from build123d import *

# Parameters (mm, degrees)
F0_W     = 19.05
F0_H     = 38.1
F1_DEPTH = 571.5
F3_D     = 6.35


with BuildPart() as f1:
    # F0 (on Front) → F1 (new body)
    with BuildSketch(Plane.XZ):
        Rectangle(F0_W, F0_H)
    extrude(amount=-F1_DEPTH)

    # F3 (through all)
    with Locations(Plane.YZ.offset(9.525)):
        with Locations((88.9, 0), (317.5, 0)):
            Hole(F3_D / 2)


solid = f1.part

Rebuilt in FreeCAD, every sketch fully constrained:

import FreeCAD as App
import Part
import Sketcher
Q = App.Units.Quantity


def add_polygon(sketch, points):
    """Adds a closed chain of lines whose ends are joined by coincident constraints."""
    first, n = sketch.GeometryCount, len(points)
    for a, b in zip(points, points[1:] + points[:1]):
        sketch.addGeometry(Part.LineSegment(App.Vector(*a, 0), App.Vector(*b, 0)), False)
    for i in range(n):
        sketch.addConstraint(Sketcher.Constraint("Coincident", first + i, 2, first + (i + 1) % n, 1))

doc = App.newDocument("Part")
body = doc.addObject("PartDesign::Body", "Body")

# Sketch on XZ plane
sketch1 = doc.addObject("Sketcher::SketchObject", "Sketch")
body.addObject(sketch1)
sketch1.AttachmentSupport = (doc.XZ_Plane, [""])
sketch1.MapMode = "FlatFace"
add_polygon(sketch1, [(-10, 19), (-10, -19), (10, -19), (10, 19)])  # lines 0-3
sketch1.addConstraint(Sketcher.Constraint("Vertical", 0))
sketch1.addConstraint(Sketcher.Constraint("Horizontal", 1))
sketch1.addConstraint(Sketcher.Constraint("Vertical", 2))
sketch1.addConstraint(Sketcher.Constraint("Horizontal", 3))
sketch1.addConstraint(Sketcher.Constraint("Symmetric", 0, 2, 2, 2, -1, 1))
sketch1.addConstraint(Sketcher.Constraint("DistanceY", 0, 2, 0, 1, Q("1.5 in")))
sketch1.addConstraint(Sketcher.Constraint("DistanceX", 1, 1, 1, 2, Q("0.75 in")))
pad1 = doc.addObject("PartDesign::Pad", "Pad")
body.addObject(pad1)
pad1.Profile = sketch1
pad1.Length = Q("22.5 in")
pad1.Reversed = True

# Sketch on YZ plane
sketch2 = doc.addObject("Sketcher::SketchObject", "Sketch001")
body.addObject(sketch2)
sketch2.AttachmentSupport = (doc.YZ_Plane, [""])
sketch2.MapMode = "FlatFace"
sketch2.AttachmentOffset = App.Placement(App.Vector(0, 0, 0.375 * 25.4), App.Rotation())
sketch2.addGeometry(Part.Circle(App.Vector(88.9, 0, 0), App.Vector(0, 0, 1), 3.2), False)
sketch2.addGeometry(Part.Circle(App.Vector(317.5, 0, 0), App.Vector(0, 0, 1), 3.2), False)
sketch2.addConstraint(Sketcher.Constraint("Equal", 0, 1))
sketch2.addConstraint(Sketcher.Constraint("PointOnObject", 0, 3, -1))
sketch2.addConstraint(Sketcher.Constraint("PointOnObject", 1, 3, -1))
sketch2.addConstraint(Sketcher.Constraint("Diameter", 0, Q("0.25 in")))
sketch2.addConstraint(Sketcher.Constraint("DistanceX", 0, 3, 1, 3, Q("9 in")))
sketch2.addConstraint(Sketcher.Constraint("DistanceX", -1, 1, 0, 3, Q("3.5 in")))
doc.recompute()
hole = doc.addObject("PartDesign::Hole", "Hole")
body.addObject(hole)
hole.Profile = sketch2
hole.ThreadType = "None"
hole.Diameter = Q("0.25 in")
hole.DepthType = "ThroughAll"

doc.recompute()
